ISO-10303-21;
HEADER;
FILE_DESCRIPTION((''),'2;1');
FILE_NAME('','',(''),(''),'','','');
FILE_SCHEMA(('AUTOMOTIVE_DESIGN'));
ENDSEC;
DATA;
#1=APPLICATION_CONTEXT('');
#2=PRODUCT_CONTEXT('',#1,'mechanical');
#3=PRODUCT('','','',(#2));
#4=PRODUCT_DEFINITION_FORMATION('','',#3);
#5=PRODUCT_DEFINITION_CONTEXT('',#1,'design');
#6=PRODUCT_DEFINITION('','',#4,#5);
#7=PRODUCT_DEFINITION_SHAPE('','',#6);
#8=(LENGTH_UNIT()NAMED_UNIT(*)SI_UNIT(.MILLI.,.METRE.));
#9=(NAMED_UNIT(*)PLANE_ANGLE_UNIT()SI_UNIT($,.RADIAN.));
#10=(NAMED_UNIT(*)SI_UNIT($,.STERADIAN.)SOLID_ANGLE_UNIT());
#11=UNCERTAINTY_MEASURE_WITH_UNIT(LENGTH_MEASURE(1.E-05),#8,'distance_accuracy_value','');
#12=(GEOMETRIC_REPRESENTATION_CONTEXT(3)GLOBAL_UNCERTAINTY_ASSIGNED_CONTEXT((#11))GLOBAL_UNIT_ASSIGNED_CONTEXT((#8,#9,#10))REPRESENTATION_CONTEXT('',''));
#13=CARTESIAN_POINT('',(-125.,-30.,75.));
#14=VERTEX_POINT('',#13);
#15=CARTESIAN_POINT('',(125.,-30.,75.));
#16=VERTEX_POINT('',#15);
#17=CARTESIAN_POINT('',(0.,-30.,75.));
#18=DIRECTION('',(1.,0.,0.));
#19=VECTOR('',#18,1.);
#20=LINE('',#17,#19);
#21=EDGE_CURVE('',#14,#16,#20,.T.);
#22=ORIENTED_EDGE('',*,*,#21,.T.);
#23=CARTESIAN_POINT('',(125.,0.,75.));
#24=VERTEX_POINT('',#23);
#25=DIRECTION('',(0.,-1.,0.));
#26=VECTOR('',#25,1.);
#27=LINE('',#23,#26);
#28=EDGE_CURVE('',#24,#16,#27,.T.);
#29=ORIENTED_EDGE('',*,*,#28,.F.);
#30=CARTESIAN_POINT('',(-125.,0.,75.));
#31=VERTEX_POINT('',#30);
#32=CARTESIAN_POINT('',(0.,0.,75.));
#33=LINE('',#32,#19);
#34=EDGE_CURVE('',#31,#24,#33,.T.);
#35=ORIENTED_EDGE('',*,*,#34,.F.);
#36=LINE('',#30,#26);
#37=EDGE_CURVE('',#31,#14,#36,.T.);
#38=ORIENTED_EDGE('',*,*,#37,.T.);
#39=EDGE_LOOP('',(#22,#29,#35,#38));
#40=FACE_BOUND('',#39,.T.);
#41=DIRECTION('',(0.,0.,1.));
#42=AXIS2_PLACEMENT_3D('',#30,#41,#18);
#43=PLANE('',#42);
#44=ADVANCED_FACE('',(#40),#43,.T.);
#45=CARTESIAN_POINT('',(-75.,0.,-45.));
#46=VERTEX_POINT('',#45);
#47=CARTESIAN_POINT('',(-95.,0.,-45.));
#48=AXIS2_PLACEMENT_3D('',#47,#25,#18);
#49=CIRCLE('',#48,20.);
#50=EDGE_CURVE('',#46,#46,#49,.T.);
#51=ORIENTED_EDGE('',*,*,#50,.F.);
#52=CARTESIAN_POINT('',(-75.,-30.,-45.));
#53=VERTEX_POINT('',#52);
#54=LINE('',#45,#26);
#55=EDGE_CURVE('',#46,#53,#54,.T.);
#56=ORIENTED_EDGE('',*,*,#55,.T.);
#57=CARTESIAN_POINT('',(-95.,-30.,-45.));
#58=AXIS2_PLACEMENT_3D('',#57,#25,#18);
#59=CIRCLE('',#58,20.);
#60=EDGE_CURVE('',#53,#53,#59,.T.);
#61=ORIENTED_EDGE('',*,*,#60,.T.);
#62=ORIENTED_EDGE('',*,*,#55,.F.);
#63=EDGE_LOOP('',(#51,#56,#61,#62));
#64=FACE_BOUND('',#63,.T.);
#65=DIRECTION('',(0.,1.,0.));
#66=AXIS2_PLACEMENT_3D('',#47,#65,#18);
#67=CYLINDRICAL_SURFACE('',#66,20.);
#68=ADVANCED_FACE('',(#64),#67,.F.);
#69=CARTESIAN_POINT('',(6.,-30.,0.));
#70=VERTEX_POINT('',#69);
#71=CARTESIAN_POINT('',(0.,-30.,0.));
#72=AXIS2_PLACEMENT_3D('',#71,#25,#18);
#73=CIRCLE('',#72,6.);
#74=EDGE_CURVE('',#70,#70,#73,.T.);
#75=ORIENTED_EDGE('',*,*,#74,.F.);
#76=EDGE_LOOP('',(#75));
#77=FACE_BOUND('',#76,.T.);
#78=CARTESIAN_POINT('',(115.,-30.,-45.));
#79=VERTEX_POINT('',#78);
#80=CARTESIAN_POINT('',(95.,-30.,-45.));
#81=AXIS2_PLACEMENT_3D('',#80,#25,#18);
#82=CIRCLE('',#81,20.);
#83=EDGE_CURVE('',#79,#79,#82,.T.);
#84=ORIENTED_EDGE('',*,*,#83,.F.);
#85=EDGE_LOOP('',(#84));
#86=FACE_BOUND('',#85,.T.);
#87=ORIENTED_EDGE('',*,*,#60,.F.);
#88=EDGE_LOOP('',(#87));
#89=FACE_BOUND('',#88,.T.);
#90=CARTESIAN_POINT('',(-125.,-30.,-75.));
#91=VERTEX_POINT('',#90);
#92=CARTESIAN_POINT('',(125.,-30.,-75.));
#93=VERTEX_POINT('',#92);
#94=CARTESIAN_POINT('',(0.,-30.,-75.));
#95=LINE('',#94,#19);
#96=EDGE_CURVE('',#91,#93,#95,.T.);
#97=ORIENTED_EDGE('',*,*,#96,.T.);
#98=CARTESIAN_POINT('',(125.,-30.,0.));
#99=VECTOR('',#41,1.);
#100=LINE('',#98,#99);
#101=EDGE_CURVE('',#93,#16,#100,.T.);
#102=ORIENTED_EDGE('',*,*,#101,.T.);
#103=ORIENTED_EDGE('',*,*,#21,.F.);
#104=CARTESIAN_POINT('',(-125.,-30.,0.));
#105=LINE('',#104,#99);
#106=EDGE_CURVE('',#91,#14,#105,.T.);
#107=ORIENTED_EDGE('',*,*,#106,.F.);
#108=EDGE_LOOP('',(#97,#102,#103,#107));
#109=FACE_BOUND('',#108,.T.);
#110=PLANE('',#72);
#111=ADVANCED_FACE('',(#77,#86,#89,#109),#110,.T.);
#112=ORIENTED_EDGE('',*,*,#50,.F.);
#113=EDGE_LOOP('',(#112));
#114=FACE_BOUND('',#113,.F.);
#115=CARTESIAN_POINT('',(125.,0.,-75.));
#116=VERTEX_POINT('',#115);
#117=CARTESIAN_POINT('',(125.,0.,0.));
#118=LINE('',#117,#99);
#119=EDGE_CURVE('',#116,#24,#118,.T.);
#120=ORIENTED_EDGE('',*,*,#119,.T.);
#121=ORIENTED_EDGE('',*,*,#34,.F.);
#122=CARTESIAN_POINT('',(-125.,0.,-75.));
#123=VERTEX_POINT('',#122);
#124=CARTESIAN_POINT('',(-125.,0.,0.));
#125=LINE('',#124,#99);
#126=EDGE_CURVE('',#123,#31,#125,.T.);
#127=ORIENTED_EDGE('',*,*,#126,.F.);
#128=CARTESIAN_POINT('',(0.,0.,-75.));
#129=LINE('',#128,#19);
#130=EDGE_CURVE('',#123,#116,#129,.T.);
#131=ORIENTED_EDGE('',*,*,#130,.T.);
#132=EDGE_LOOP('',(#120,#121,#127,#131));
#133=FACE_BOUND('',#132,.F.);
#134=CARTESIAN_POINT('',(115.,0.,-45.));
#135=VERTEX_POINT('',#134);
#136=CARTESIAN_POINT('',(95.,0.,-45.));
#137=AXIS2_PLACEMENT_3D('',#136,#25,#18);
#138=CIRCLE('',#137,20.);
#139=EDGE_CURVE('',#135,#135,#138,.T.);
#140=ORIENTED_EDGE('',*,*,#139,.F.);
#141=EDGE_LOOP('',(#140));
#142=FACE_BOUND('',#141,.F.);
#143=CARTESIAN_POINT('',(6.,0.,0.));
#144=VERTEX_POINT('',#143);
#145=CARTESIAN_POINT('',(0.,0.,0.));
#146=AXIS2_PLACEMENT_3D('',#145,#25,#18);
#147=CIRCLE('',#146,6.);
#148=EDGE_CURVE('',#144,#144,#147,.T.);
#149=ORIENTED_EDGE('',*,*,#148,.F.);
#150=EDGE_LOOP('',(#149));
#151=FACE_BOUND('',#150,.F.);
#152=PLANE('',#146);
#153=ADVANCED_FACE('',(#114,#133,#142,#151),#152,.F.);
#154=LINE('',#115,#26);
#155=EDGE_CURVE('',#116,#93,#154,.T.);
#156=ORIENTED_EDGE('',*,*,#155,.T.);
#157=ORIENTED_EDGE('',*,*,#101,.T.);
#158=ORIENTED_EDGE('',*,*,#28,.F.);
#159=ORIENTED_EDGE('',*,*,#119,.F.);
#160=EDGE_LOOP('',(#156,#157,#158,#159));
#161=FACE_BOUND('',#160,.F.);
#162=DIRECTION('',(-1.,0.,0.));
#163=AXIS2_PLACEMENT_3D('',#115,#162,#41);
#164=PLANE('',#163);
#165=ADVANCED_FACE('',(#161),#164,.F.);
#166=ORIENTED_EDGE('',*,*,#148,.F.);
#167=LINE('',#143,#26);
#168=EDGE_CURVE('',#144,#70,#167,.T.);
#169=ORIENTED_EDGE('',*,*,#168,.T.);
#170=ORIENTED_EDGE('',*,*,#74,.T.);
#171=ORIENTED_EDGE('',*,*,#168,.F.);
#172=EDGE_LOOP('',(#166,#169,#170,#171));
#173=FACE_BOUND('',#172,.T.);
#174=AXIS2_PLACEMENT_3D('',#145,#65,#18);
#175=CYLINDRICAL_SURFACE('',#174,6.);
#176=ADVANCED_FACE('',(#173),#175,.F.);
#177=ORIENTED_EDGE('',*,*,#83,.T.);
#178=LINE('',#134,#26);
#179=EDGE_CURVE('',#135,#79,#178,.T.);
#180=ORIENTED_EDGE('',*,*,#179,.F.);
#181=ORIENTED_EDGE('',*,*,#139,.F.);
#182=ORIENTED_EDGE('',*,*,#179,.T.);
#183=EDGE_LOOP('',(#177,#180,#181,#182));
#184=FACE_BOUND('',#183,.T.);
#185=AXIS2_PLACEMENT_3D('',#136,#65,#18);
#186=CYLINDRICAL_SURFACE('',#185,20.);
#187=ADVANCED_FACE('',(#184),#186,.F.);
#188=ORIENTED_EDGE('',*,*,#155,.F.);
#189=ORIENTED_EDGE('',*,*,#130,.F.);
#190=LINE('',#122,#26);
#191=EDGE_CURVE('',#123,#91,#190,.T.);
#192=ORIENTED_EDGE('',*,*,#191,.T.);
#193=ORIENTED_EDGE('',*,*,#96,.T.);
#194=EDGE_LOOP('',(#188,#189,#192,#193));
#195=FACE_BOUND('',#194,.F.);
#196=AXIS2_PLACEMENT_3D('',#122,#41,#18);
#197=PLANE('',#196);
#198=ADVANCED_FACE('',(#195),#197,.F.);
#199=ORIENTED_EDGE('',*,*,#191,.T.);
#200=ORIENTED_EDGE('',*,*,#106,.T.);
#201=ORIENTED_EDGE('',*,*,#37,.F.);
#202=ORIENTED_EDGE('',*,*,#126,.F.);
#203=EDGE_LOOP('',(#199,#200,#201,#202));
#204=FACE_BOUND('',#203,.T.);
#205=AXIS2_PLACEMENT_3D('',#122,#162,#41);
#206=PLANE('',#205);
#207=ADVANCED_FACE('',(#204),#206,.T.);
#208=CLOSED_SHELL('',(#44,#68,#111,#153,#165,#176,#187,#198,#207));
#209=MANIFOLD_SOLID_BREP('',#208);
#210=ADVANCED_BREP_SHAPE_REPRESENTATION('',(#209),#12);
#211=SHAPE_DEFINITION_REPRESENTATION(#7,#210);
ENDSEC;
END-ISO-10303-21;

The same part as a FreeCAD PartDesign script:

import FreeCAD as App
import Part
import Sketcher
Q = App.Units.Quantity


def add_polygon(sketch, points):
    """Adds a closed chain of lines whose ends are joined by coincident constraints."""
    first, n = sketch.GeometryCount, len(points)
    for a, b in zip(points, points[1:] + points[:1]):
        sketch.addGeometry(Part.LineSegment(App.Vector(*a, 0), App.Vector(*b, 0)), False)
    for i in range(n):
        sketch.addConstraint(Sketcher.Constraint("Coincident", first + i, 2, first + (i + 1) % n, 1))

doc = App.newDocument("Part")
body = doc.addObject("PartDesign::Body", "Body")

sketch1 = doc.addObject("Sketcher::SketchObject", "Sketch")
body.addObject(sketch1)
sketch1.AttachmentSupport = (doc.XZ_Plane, [""])
sketch1.MapMode = "FlatFace"
add_polygon(sketch1, [(-125, 75), (-125, -75), (125, -75), (125, 75)])
sketch1.addGeometry(Part.Circle(App.Vector(-95, -45, 0), App.Vector(0, 0, 1), 20), False)
sketch1.addGeometry(Part.Circle(App.Vector(95, -45, 0), App.Vector(0, 0, 1), 20), False)
sketch1.addGeometry(Part.Circle(App.Vector(0, 0, 0), App.Vector(0, 0, 1), 6), False)
sketch1.addConstraint([
    Sketcher.Constraint("Vertical", 0),
    Sketcher.Constraint("Horizontal", 1),
    Sketcher.Constraint("Vertical", 2),
    Sketcher.Constraint("Horizontal", 3),
    Sketcher.Constraint("Coincident", 6, 3, -1, 1),
    Sketcher.Constraint("Equal", 4, 5),
    Sketcher.Constraint("Symmetric", 0, 2, 2, 2, -1, 1),
    Sketcher.Constraint("Symmetric", 4, 3, 5, 3, -2),
    Sketcher.Constraint("Diameter", 4, Q("40 mm")),
    Sketcher.Constraint("Diameter", 6, Q("12 mm")),
    Sketcher.Constraint("DistanceX", 1, 1, 1, 2, Q("250 mm")),
    Sketcher.Constraint("DistanceY", 0, 2, 0, 1, Q("150 mm")),
    Sketcher.Constraint("DistanceX", 4, 3, -1, 1, Q("95 mm")),
    Sketcher.Constraint("DistanceY", 4, 3, -1, 1, Q("45 mm")),
])
pad1 = doc.addObject("PartDesign::Pad", "Pad")
body.addObject(pad1)
pad1.Profile = sketch1
pad1.Length = 30

doc.recompute()
